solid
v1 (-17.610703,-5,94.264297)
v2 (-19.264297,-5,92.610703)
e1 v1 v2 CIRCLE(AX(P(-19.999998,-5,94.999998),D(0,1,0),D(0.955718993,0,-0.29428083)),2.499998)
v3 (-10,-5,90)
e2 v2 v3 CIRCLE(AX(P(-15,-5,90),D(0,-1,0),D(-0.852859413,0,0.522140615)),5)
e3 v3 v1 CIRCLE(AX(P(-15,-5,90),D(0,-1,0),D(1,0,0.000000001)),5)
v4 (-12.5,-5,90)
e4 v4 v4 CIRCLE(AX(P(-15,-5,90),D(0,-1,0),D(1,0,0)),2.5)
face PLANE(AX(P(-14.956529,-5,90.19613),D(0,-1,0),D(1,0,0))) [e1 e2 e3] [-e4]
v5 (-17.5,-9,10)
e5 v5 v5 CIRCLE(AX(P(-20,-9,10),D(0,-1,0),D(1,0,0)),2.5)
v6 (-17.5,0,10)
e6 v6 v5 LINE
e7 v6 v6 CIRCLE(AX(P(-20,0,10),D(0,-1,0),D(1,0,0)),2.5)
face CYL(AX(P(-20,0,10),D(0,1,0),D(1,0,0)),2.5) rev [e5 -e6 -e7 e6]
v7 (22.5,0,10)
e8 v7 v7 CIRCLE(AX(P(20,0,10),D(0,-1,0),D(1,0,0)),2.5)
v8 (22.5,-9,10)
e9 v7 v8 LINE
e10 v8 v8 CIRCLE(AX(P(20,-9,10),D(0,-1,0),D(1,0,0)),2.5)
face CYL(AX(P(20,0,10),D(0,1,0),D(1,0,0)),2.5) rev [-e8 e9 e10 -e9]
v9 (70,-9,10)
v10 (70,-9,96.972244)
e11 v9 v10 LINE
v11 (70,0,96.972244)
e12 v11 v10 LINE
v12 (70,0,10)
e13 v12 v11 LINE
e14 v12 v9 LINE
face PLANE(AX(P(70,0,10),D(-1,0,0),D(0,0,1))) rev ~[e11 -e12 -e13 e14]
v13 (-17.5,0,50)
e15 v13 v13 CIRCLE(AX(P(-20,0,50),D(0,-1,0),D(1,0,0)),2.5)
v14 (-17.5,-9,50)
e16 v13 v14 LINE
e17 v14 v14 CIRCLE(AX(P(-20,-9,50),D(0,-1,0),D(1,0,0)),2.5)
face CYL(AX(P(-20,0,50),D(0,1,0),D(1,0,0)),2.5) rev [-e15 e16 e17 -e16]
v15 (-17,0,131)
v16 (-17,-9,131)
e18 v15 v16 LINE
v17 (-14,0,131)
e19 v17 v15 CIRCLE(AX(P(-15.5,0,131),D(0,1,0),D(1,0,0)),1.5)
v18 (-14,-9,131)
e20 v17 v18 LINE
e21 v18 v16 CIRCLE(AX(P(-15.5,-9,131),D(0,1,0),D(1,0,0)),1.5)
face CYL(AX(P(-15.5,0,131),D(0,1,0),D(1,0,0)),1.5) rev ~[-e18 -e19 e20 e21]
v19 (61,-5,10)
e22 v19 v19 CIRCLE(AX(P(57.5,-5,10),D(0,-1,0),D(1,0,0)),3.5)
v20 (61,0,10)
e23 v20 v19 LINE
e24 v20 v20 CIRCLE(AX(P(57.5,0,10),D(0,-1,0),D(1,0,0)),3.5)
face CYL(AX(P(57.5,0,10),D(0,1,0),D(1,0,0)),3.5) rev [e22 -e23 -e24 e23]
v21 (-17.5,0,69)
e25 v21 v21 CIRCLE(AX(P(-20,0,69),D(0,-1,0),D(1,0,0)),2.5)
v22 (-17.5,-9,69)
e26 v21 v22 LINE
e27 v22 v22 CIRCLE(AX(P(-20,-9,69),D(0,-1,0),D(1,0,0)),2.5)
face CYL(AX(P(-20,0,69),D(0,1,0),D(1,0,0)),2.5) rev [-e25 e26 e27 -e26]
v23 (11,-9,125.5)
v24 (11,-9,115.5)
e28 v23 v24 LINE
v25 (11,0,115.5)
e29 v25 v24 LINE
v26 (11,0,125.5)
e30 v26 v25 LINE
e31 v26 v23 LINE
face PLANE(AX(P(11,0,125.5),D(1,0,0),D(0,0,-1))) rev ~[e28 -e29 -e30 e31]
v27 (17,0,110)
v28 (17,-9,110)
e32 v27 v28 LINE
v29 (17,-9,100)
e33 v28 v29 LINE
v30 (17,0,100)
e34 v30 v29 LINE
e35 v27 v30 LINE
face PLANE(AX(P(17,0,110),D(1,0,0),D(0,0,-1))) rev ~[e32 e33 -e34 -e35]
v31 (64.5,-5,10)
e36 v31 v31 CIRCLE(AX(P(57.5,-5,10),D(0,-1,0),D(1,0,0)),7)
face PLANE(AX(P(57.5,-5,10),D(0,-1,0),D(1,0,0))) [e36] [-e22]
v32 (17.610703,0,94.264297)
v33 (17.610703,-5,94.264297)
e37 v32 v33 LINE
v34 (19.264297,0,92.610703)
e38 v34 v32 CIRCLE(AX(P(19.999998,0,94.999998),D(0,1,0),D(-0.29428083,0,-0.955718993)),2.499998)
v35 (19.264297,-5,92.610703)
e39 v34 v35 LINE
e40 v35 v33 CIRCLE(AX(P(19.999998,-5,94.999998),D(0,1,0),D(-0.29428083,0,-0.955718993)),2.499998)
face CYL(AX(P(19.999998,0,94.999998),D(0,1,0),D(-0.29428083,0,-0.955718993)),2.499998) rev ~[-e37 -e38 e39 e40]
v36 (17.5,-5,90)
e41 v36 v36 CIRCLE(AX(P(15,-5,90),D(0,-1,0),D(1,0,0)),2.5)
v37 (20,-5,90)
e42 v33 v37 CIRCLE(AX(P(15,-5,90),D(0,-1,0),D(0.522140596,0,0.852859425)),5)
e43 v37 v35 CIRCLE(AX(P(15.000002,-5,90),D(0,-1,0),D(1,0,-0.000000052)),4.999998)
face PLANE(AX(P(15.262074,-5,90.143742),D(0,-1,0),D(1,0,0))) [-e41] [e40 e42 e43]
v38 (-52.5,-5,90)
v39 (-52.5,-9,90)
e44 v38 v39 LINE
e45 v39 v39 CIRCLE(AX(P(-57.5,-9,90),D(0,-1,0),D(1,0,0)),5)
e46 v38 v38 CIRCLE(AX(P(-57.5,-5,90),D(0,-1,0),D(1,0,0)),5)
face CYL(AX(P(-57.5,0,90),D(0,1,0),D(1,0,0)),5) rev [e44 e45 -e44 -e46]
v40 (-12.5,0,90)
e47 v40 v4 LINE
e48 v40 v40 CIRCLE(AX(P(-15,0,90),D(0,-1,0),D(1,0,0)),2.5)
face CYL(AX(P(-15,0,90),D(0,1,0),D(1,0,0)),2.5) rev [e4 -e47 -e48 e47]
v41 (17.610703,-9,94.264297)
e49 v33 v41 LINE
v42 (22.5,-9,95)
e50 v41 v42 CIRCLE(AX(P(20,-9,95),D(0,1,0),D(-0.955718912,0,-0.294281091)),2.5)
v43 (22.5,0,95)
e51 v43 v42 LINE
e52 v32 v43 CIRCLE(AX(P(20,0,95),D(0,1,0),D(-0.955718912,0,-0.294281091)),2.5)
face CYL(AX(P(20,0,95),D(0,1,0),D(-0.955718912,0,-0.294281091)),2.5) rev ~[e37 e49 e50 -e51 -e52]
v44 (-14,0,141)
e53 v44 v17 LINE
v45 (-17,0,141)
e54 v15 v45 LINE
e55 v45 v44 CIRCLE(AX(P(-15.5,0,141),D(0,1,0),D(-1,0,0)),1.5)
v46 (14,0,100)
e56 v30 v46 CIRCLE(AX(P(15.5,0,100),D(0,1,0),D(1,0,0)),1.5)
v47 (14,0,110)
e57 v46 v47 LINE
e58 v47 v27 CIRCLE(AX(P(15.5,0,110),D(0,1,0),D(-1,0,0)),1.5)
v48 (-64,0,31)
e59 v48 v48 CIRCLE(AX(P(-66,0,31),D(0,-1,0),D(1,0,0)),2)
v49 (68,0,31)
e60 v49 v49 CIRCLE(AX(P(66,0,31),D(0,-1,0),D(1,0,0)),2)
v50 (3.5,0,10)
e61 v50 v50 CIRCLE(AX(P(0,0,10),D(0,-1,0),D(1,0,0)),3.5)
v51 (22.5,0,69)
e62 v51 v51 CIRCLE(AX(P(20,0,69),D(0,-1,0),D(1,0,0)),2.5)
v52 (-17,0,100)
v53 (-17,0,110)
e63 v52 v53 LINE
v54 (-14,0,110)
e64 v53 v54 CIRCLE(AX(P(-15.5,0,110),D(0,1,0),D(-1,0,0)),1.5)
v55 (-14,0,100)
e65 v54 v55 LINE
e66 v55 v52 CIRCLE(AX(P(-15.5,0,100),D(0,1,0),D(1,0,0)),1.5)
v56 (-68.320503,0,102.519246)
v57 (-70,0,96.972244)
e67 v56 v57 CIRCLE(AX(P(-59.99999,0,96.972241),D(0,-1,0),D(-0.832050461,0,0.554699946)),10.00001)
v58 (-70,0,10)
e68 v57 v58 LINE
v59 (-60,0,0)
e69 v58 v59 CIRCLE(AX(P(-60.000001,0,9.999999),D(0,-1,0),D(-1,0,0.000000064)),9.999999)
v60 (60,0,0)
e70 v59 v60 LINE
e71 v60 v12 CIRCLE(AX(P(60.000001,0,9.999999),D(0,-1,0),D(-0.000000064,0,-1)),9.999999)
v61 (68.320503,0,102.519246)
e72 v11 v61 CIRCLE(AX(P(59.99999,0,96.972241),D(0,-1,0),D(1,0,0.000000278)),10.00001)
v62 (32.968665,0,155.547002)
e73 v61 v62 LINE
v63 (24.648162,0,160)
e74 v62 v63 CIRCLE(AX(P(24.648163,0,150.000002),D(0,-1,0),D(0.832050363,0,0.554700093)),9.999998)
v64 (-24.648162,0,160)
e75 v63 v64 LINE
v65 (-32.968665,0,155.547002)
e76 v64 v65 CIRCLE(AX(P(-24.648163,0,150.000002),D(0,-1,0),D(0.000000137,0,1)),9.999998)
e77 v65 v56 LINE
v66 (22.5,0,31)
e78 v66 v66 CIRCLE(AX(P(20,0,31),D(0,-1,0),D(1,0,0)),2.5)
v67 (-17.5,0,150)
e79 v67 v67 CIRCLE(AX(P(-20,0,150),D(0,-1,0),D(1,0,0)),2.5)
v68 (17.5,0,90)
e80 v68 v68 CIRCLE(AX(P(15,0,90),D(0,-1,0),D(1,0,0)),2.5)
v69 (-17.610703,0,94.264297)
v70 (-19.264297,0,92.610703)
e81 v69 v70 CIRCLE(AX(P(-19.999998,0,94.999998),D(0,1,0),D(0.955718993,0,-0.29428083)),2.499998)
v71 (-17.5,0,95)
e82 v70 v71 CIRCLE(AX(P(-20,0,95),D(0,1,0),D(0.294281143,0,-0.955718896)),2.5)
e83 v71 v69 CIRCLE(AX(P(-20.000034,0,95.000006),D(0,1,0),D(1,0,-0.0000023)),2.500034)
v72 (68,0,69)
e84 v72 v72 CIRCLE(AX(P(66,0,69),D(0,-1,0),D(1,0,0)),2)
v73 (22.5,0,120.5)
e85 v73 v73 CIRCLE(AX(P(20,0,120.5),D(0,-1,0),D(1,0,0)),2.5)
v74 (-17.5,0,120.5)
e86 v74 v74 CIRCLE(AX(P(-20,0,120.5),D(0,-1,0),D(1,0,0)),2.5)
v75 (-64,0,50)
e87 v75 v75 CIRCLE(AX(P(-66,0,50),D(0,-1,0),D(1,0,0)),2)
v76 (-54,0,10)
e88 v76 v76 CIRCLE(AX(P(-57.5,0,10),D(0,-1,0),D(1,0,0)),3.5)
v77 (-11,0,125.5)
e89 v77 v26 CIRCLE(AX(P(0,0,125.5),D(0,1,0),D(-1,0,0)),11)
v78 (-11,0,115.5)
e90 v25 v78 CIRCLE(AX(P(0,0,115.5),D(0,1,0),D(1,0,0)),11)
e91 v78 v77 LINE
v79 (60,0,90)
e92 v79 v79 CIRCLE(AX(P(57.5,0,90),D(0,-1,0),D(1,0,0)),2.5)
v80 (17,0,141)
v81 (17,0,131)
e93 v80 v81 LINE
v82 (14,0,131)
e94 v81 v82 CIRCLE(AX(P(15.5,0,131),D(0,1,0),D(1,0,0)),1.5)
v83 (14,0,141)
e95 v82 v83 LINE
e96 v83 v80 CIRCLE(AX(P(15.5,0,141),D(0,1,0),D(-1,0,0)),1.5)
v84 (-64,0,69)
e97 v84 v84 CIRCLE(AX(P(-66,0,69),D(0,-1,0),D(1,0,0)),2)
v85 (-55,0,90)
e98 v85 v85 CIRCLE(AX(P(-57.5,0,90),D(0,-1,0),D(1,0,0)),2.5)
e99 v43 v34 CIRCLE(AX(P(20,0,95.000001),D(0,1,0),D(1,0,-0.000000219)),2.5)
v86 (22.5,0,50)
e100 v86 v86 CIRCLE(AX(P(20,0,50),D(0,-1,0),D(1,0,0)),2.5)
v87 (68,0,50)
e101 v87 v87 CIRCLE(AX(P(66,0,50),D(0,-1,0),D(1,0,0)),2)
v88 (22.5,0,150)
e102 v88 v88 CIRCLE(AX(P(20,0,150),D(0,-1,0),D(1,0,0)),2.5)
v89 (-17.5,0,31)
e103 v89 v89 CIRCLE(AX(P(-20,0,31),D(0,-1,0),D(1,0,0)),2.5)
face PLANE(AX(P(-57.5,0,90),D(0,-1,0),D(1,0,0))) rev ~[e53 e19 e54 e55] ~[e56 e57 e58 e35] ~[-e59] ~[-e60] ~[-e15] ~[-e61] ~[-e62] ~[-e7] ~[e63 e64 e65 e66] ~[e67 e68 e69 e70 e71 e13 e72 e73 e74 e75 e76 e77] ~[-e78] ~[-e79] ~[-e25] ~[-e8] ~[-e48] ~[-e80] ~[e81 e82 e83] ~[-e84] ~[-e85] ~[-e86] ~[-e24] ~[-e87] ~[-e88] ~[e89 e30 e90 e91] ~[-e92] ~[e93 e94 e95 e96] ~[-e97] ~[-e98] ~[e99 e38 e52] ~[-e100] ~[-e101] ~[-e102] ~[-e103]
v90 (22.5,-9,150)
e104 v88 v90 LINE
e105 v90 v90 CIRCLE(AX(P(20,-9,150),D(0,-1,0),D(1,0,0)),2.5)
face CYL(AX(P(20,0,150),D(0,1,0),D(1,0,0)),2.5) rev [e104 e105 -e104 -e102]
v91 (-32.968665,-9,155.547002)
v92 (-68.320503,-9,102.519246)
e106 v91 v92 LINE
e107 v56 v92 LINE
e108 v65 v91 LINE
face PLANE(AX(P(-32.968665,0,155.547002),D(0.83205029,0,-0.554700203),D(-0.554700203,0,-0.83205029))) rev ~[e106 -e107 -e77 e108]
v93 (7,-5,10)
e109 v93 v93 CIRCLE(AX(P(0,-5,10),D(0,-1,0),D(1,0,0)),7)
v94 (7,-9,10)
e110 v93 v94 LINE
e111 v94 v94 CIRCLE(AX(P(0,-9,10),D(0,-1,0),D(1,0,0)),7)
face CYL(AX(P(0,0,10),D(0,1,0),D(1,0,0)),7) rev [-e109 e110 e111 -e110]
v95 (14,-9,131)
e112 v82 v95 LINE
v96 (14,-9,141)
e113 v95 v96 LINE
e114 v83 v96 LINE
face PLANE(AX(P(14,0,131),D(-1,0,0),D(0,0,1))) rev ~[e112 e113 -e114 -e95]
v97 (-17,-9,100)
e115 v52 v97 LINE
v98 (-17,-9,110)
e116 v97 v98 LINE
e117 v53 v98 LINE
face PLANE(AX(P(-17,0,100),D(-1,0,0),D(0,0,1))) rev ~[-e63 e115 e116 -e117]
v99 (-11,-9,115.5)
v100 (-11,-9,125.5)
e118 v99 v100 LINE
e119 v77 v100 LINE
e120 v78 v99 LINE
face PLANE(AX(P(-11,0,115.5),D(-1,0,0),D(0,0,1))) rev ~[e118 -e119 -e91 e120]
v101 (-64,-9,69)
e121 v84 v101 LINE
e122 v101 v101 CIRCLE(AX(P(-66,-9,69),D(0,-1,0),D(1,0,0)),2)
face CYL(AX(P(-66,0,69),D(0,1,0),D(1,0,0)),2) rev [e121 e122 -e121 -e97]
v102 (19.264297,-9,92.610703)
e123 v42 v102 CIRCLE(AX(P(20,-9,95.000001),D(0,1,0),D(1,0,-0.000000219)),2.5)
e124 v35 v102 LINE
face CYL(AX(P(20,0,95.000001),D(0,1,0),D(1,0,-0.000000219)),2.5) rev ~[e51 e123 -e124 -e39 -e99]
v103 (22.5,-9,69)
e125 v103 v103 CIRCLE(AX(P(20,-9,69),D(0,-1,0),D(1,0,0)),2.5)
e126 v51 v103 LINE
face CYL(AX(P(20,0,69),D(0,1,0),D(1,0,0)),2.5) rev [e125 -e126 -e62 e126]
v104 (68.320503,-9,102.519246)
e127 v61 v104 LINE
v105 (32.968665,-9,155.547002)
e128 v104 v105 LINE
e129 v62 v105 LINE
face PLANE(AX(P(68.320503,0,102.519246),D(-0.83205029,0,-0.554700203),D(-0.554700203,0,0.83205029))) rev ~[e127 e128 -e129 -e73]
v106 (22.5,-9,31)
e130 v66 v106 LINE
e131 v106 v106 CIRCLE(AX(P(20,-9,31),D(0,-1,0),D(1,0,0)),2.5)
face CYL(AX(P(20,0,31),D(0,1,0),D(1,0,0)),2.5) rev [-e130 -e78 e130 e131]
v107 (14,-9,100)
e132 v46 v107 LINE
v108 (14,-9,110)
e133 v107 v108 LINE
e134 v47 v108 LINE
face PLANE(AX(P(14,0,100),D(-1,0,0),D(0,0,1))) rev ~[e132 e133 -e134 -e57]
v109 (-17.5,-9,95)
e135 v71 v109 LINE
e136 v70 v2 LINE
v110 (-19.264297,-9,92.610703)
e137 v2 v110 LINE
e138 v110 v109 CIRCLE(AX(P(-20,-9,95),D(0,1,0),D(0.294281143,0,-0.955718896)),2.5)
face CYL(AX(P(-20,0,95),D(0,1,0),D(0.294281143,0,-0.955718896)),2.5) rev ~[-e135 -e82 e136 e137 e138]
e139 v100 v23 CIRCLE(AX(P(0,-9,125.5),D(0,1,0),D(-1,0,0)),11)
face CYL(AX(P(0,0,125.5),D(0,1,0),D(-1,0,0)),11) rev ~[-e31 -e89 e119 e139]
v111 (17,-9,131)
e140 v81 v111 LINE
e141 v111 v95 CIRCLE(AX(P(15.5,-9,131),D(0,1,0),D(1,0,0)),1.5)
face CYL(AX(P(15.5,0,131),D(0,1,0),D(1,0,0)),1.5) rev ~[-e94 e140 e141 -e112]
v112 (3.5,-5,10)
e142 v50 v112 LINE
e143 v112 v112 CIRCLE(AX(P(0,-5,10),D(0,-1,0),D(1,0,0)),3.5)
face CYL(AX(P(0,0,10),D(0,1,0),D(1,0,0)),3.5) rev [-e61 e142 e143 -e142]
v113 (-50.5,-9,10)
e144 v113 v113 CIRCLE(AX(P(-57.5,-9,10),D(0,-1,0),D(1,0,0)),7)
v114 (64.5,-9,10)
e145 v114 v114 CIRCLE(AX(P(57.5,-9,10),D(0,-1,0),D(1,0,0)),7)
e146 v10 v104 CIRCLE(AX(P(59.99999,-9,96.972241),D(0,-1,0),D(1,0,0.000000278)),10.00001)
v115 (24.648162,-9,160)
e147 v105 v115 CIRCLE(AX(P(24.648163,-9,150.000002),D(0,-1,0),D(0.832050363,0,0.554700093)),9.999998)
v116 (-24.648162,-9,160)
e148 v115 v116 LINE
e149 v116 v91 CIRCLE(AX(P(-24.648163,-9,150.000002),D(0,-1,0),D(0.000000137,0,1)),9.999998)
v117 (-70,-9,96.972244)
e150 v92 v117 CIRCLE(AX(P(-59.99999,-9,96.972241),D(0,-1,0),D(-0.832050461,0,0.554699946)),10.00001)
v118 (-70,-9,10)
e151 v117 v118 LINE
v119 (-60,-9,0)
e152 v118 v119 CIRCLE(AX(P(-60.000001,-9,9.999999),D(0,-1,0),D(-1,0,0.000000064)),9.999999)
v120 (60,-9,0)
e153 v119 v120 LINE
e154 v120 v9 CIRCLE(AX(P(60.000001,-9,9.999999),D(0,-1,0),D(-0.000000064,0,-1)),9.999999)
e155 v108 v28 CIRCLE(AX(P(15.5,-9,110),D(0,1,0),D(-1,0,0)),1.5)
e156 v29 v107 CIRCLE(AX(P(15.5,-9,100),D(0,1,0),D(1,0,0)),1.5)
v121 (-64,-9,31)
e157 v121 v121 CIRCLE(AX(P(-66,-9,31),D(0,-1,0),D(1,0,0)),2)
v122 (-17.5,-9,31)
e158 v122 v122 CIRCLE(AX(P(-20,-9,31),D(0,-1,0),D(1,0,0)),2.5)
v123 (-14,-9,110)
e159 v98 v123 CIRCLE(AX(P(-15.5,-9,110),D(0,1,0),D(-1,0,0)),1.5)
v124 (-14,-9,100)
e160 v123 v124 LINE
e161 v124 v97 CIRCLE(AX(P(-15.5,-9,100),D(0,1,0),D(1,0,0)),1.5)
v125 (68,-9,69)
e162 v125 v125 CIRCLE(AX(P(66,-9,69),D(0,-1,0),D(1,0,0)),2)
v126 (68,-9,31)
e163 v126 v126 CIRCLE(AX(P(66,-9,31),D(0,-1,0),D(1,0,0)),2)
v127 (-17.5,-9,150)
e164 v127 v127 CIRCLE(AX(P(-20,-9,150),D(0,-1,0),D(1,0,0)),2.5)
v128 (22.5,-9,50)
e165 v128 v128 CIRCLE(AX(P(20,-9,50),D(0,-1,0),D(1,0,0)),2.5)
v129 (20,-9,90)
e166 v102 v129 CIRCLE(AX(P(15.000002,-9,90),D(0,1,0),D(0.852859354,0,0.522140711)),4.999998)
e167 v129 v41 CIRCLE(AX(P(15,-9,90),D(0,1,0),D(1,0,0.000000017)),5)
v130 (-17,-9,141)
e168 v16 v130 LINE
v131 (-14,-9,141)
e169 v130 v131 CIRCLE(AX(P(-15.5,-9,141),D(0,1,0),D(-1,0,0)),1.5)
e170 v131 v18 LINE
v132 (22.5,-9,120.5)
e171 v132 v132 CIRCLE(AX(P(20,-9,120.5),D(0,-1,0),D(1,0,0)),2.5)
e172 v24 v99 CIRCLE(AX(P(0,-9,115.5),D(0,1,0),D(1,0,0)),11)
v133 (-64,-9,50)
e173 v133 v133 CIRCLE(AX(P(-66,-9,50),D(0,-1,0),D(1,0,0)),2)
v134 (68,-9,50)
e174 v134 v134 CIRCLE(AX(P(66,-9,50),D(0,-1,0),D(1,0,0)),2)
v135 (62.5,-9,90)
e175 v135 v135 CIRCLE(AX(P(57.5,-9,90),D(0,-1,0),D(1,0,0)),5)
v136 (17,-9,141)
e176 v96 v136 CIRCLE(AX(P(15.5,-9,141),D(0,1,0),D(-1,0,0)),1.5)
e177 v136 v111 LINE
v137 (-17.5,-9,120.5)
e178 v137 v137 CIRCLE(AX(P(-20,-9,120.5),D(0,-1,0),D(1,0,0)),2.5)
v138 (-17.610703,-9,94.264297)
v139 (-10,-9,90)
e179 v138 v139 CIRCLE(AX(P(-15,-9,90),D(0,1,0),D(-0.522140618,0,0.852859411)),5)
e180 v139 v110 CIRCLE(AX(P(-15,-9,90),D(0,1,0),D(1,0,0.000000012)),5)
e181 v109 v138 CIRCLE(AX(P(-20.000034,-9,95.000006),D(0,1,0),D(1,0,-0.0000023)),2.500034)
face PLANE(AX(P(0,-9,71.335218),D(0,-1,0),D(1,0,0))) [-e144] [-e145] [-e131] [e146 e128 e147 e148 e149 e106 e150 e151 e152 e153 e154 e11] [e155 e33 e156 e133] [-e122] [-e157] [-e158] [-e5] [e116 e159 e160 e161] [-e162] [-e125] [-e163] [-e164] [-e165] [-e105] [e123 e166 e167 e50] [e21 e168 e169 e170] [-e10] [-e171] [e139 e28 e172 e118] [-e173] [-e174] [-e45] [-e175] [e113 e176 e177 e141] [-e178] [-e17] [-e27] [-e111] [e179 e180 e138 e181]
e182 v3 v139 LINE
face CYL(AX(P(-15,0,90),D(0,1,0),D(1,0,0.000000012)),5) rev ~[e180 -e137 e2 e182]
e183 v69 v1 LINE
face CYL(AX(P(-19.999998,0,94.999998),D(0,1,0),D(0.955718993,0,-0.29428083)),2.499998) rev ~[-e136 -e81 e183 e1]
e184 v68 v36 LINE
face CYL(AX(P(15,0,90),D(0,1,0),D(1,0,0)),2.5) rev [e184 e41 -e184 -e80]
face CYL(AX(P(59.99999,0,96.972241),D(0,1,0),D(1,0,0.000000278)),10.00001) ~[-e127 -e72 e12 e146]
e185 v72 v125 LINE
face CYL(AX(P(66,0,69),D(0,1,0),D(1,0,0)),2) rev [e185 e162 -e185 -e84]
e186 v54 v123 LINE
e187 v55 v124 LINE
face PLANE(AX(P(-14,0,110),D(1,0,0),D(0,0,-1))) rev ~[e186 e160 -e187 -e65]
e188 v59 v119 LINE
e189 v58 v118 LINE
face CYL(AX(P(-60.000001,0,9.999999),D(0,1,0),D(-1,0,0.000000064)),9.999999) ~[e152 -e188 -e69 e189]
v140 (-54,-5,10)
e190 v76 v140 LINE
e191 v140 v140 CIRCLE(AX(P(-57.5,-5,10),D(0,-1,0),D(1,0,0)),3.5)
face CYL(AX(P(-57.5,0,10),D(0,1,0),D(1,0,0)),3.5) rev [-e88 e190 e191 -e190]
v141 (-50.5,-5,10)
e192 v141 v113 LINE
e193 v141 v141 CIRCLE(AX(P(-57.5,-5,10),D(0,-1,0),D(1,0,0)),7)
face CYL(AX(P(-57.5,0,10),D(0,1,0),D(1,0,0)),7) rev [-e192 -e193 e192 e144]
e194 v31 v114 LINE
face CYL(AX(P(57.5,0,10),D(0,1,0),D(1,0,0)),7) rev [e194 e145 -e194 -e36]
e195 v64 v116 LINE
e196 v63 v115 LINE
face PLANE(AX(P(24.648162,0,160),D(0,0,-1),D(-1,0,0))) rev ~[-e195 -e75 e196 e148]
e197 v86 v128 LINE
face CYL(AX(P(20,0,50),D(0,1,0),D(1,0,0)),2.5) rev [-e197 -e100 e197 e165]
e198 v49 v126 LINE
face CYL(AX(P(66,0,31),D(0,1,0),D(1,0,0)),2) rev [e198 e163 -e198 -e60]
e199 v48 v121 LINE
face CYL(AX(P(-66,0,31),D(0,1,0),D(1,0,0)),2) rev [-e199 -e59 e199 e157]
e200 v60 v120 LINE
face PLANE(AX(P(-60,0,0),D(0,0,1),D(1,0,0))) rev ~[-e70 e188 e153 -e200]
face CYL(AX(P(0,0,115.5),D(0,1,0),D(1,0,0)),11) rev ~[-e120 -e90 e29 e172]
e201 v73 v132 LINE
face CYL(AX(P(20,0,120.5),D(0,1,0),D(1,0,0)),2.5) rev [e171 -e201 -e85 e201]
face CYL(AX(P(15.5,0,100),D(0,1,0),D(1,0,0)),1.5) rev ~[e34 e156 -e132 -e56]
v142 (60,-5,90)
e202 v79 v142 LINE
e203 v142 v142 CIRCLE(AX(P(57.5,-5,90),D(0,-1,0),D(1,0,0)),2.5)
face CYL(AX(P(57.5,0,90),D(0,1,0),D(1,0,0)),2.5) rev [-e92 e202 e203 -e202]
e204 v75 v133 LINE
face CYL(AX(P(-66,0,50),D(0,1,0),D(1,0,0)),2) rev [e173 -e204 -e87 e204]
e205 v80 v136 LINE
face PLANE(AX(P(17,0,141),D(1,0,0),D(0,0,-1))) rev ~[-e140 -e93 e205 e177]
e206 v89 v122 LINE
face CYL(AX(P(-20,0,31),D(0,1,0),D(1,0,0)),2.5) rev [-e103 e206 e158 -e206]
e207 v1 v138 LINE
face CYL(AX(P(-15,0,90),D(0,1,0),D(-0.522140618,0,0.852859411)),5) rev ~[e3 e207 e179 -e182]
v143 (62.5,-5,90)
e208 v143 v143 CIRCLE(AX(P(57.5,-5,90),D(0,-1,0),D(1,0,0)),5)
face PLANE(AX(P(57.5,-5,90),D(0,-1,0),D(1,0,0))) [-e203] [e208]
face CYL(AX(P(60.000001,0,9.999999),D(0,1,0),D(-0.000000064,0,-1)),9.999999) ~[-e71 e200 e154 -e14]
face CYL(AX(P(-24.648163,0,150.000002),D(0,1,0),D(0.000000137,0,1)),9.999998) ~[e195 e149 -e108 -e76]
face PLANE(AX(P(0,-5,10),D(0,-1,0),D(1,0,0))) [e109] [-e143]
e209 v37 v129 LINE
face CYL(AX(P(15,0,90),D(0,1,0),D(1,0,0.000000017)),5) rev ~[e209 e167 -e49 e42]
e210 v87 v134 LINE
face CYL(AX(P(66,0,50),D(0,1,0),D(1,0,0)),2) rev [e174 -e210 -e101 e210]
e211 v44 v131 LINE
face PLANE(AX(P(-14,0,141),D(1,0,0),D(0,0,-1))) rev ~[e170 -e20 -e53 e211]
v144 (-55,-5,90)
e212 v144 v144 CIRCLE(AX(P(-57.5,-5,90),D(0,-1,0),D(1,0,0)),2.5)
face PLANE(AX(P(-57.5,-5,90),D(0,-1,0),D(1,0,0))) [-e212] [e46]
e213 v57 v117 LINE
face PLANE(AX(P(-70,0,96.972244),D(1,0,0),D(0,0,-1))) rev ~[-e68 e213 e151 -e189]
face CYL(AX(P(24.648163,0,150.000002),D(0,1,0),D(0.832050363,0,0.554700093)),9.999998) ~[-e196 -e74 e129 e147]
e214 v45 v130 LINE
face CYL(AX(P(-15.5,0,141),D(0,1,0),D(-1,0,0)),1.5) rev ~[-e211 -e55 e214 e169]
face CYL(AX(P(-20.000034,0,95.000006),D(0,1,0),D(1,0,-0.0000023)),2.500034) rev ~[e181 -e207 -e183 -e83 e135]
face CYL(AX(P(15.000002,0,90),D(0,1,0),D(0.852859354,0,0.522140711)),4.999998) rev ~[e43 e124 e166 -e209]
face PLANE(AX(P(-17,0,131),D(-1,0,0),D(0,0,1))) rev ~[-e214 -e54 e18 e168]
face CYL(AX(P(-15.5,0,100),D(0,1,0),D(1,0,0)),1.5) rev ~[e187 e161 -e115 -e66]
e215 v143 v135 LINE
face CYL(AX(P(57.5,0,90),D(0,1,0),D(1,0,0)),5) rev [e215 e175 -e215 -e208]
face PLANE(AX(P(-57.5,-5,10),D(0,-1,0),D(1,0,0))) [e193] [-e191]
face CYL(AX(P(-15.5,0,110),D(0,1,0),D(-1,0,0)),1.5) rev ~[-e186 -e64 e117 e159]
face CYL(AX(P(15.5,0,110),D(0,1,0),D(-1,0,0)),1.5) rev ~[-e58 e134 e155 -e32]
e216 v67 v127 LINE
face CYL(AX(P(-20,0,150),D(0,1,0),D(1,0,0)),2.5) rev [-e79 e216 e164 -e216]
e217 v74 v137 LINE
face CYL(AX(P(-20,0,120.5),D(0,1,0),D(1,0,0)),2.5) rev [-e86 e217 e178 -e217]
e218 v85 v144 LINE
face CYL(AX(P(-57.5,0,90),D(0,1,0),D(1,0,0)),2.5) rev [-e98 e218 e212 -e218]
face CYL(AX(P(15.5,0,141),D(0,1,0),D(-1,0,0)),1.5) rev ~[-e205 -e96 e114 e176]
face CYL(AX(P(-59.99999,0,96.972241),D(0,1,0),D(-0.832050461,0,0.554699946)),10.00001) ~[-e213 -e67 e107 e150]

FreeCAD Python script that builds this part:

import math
import FreeCAD as App
import Part
import Sketcher

V = App.Vector
Q = App.Units.Quantity

doc = App.newDocument("Part")
body = doc.addObject("PartDesign::Body", "Body")

# Sketch on XZ plane
sketch1 = doc.addObject("Sketcher::SketchObject", "Sketch")
body.addObject(sketch1)
sketch1.AttachmentSupport = (doc.XZ_Plane, [""])
sketch1.MapMode = "FlatFace"
sketch1.addGeometry(Part.ArcOfCircle(Part.Circle(V(-60, 10, 0), V(0, 0, 1), 10), math.radians(180), math.radians(270)), False)
sketch1.addGeometry(Part.LineSegment(V(-60, 0, 0), V(60, 0, 0)), False)
sketch1.addGeometry(Part.ArcOfCircle(Part.Circle(V(60, 10, 0), V(0, 0, 1), 10), math.radians(-90), math.radians(0)), False)
sketch1.addGeometry(Part.LineSegment(V(70, 10, 0), V(70, 97, 0)), False)
sketch1.addGeometry(Part.ArcOfCircle(Part.Circle(V(60, 97, 0), V(0, 0, 1), 10), math.radians(0), math.radians(34)), False)
sketch1.addGeometry(Part.LineSegment(V(68.3, 102.5, 0), V(33, 155.5, 0)), False)
sketch1.addGeometry(Part.ArcOfCircle(Part.Circle(V(24.6, 150, 0), V(0, 0, 1), 10), math.radians(34), math.radians(90)), False)
sketch1.addGeometry(Part.LineSegment(V(24.6, 160, 0), V(-24.6, 160, 0)), False)
sketch1.addGeometry(Part.ArcOfCircle(Part.Circle(V(-24.6, 150, 0), V(0, 0, 1), 10), math.radians(90), math.radians(146)), False)
sketch1.addGeometry(Part.LineSegment(V(-33, 155.5, 0), V(-68.3, 102.5, 0)), False)
sketch1.addGeometry(Part.ArcOfCircle(Part.Circle(V(-60, 97, 0), V(0, 0, 1), 10), math.radians(146), math.radians(180)), False)
sketch1.addGeometry(Part.LineSegment(V(-70, 97, 0), V(-70, 10, 0)), False)
sketch1.addGeometry(Part.Circle(V(-57.5, 10, 0), V(0, 0, 1), 7), False)
sketch1.addGeometry(Part.Circle(V(-66, 31, 0), V(0, 0, 1), 2), False)
sketch1.addGeometry(Part.Circle(V(-20, 10, 0), V(0, 0, 1), 2.5), False)
sketch1.addGeometry(Part.Circle(V(-20, 31, 0), V(0, 0, 1), 2.5), False)
sketch1.addGeometry(Part.Circle(V(-66, 50, 0), V(0, 0, 1), 2), False)
sketch1.addGeometry(Part.Circle(V(-66, 69, 0), V(0, 0, 1), 2), False)
sketch1.addGeometry(Part.Circle(V(-20, 50, 0), V(0, 0, 1), 2.5), False)
sketch1.addGeometry(Part.Circle(V(-20, 69, 0), V(0, 0, 1), 2.5), False)
sketch1.addGeometry(Part.Circle(V(0, 10, 0), V(0, 0, 1), 7), False)
sketch1.addGeometry(Part.Circle(V(20, 10, 0), V(0, 0, 1), 2.5), False)
sketch1.addGeometry(Part.Circle(V(20, 31, 0), V(0, 0, 1), 2.5), False)
sketch1.addGeometry(Part.Circle(V(57.5, 10, 0), V(0, 0, 1), 7), False)
sketch1.addGeometry(Part.Circle(V(66, 31, 0), V(0, 0, 1), 2), False)
sketch1.addGeometry(Part.Circle(V(20, 50, 0), V(0, 0, 1), 2.5), False)
sketch1.addGeometry(Part.Circle(V(20, 69, 0), V(0, 0, 1), 2.5), False)
sketch1.addGeometry(Part.Circle(V(66, 50, 0), V(0, 0, 1), 2), False)
sketch1.addGeometry(Part.Circle(V(66, 69, 0), V(0, 0, 1), 2), False)
sketch1.addGeometry(Part.Circle(V(-57.5, 90, 0), V(0, 0, 1), 5), False)
sketch1.addGeometry(Part.ArcOfCircle(Part.Circle(V(-15, 90, 0), V(0, 0, 1), 5), math.radians(149), math.radians(360)), False)
sketch1.addGeometry(Part.ArcOfCircle(Part.Circle(V(-20, 95, 0), V(0, 0, 1), 2.5), math.radians(0), math.radians(287)), False)
sketch1.addGeometry(Part.ArcOfCircle(Part.Circle(V(-20, 95, 0), V(0, 0, 1), 2.5), math.radians(-17.11), math.radians(0)), False)
sketch1.addGeometry(Part.ArcOfCircle(Part.Circle(V(-15, 90, 0), V(0, 0, 1), 5), math.radians(0), math.radians(121)), False)
sketch1.addGeometry(Part.LineSegment(V(-17, 100, 0), V(-17, 110, 0)), False)
sketch1.addGeometry(Part.ArcOfCircle(Part.Circle(V(-15.5, 110, 0), V(0, 0, 1), 1.5), math.radians(0), math.radians(180)), False)
sketch1.addGeometry(Part.LineSegment(V(-14, 110, 0), V(-14, 100, 0)), False)
sketch1.addGeometry(Part.ArcOfCircle(Part.Circle(V(-15.5, 100, 0), V(0, 0, 1), 1.5), math.radians(180), math.radians(360)), False)
sketch1.addGeometry(Part.Circle(V(-20, 120.5, 0), V(0, 0, 1), 2.5), False)
sketch1.addGeometry(Part.Circle(V(-20, 150, 0), V(0, 0, 1), 2.5), False)
sketch1.addGeometry(Part.LineSegment(V(-17, 131, 0), V(-17, 141, 0)), False)
sketch1.addGeometry(Part.ArcOfCircle(Part.Circle(V(-15.5, 141, 0), V(0, 0, 1), 1.5), math.radians(0), math.radians(180)), False)
sketch1.addGeometry(Part.LineSegment(V(-14, 141, 0), V(-14, 131, 0)), False)
sketch1.addGeometry(Part.ArcOfCircle(Part.Circle(V(-15.5, 131, 0), V(0, 0, 1), 1.5), math.radians(180), math.radians(360)), False)
sketch1.addGeometry(Part.ArcOfCircle(Part.Circle(V(15, 90, 0), V(0, 0, 1), 5), math.radians(59), math.radians(360)), False)
sketch1.addGeometry(Part.ArcOfCircle(Part.Circle(V(20, 95, 0), V(0, 0, 1), 2.5), math.radians(0), math.radians(197)), False)
sketch1.addGeometry(Part.ArcOfCircle(Part.Circle(V(20, 95, 0), V(0, 0, 1), 2.5), math.radians(-107), math.radians(0)), False)
sketch1.addGeometry(Part.ArcOfCircle(Part.Circle(V(15, 90, 0), V(0, 0, 1), 5), math.radians(0), math.radians(31)), False)
sketch1.addGeometry(Part.LineSegment(V(14, 100, 0), V(14, 110, 0)), False)
sketch1.addGeometry(Part.ArcOfCircle(Part.Circle(V(15.5, 110, 0), V(0, 0, 1), 1.5), math.radians(0), math.radians(180)), False)
sketch1.addGeometry(Part.LineSegment(V(17, 110, 0), V(17, 100, 0)), False)
sketch1.addGeometry(Part.ArcOfCircle(Part.Circle(V(15.5, 100, 0), V(0, 0, 1), 1.5), math.radians(180), math.radians(360)), False)
sketch1.addGeometry(Part.Circle(V(57.5, 90, 0), V(0, 0, 1), 5), False)
sketch1.addGeometry(Part.LineSegment(V(-11, 115.5, 0), V(-11, 125.5, 0)), False)
sketch1.addGeometry(Part.ArcOfCircle(Part.Circle(V(0, 125.5, 0), V(0, 0, 1), 11), math.radians(0), math.radians(180)), False)
sketch1.addGeometry(Part.LineSegment(V(11, 125.5, 0), V(11, 115.5, 0)), False)
sketch1.addGeometry(Part.ArcOfCircle(Part.Circle(V(0, 115.5, 0), V(0, 0, 1), 11), math.radians(180), math.radians(360)), False)
sketch1.addGeometry(Part.Circle(V(20, 120.5, 0), V(0, 0, 1), 2.5), False)
sketch1.addGeometry(Part.LineSegment(V(14, 131, 0), V(14, 141, 0)), False)
sketch1.addGeometry(Part.ArcOfCircle(Part.Circle(V(15.5, 141, 0), V(0, 0, 1), 1.5), math.radians(0), math.radians(180)), False)
sketch1.addGeometry(Part.LineSegment(V(17, 141, 0), V(17, 131, 0)), False)
sketch1.addGeometry(Part.ArcOfCircle(Part.Circle(V(15.5, 131, 0), V(0, 0, 1), 1.5), math.radians(180), math.radians(360)), False)
sketch1.addGeometry(Part.Circle(V(20, 150, 0), V(0, 0, 1), 2.5), False)
sketch1.addConstraint(Sketcher.Constraint("Tangent", 0, 2, 1, 1))
sketch1.addConstraint(Sketcher.Constraint("Tangent", 1, 2, 2, 1))
sketch1.addConstraint(Sketcher.Constraint("Tangent", 2, 2, 3, 1))
sketch1.addConstraint(Sketcher.Constraint("Tangent", 3, 2, 4, 1))
sketch1.addConstraint(Sketcher.Constraint("Tangent", 4, 2, 5, 1))
sketch1.addConstraint(Sketcher.Constraint("Tangent", 5, 2, 6, 1))
sketch1.addConstraint(Sketcher.Constraint("Tangent", 6, 2, 7, 1))
sketch1.addConstraint(Sketcher.Constraint("Tangent", 7, 2, 8, 1))
sketch1.addConstraint(Sketcher.Constraint("Tangent", 8, 2, 9, 1))
sketch1.addConstraint(Sketcher.Constraint("Tangent", 9, 2, 10, 1))
sketch1.addConstraint(Sketcher.Constraint("Tangent", 10, 2, 11, 1))
sketch1.addConstraint(Sketcher.Constraint("Tangent", 11, 2, 0, 1))
sketch1.addConstraint(Sketcher.Constraint("Coincident", 30, 1, 31, 2))
sketch1.addConstraint(Sketcher.Constraint("Coincident", 31, 1, 32, 2))
sketch1.addConstraint(Sketcher.Constraint("Coincident", 32, 1, 33, 2))
sketch1.addConstraint(Sketcher.Constraint("Tangent", 33, 1, 30, 2))
sketch1.addConstraint(Sketcher.Constraint("Tangent", 34, 2, 35, 2))
sketch1.addConstraint(Sketcher.Constraint("Tangent", 35, 1, 36, 1))
sketch1.addConstraint(Sketcher.Constraint("Tangent", 36, 2, 37, 2))
sketch1.addConstraint(Sketcher.Constraint("Tangent", 37, 1, 34, 1))
sketch1.addConstraint(Sketcher.Constraint("Tangent", 40, 2, 41, 2))
sketch1.addConstraint(Sketcher.Constraint("Tangent", 41, 1, 42, 1))
sketch1.addConstraint(Sketcher.Constraint("Tangent", 42, 2, 43, 2))
sketch1.addConstraint(Sketcher.Constraint("Tangent", 43, 1, 40, 1))
sketch1.addConstraint(Sketcher.Constraint("Coincident", 44, 1, 45, 2))
sketch1.addConstraint(Sketcher.Constraint("Tangent", 45, 1, 46, 2))
sketch1.addConstraint(Sketcher.Constraint("Coincident", 46, 1, 47, 2))
sketch1.addConstraint(Sketcher.Constraint("Tangent", 47, 1, 44, 2))
sketch1.addConstraint(Sketcher.Constraint("Tangent", 48, 2, 49, 2))
sketch1.addConstraint(Sketcher.Constraint("Tangent", 49, 1, 50, 1))
sketch1.addConstraint(Sketcher.Constraint("Tangent", 50, 2, 51, 2))
sketch1.addConstraint(Sketcher.Constraint("Tangent", 51, 1, 48, 1))
sketch1.addConstraint(Sketcher.Constraint("Tangent", 53, 2, 54, 2))
sketch1.addConstraint(Sketcher.Constraint("Tangent", 54, 1, 55, 1))
sketch1.addConstraint(Sketcher.Constraint("Tangent", 55, 2, 56, 2))
sketch1.addConstraint(Sketcher.Constraint("Tangent", 56, 1, 53, 1))
sketch1.addConstraint(Sketcher.Constraint("Tangent", 58, 2, 59, 2))
sketch1.addConstraint(Sketcher.Constraint("Tangent", 59, 1, 60, 1))
sketch1.addConstraint(Sketcher.Constraint("Tangent", 60, 2, 61, 2))
sketch1.addConstraint(Sketcher.Constraint("Tangent", 61, 1, 58, 1))
sketch1.addConstraint(Sketcher.Constraint("Horizontal", 1))
sketch1.addConstraint(Sketcher.Constraint("Vertical", 3))
sketch1.addConstraint(Sketcher.Constraint("Horizontal", 7))
sketch1.addConstraint(Sketcher.Constraint("Vertical", 11))
sketch1.addConstraint(Sketcher.Constraint("Vertical", 34))
sketch1.addConstraint(Sketcher.Constraint("Vertical", 36))
sketch1.addConstraint(Sketcher.Constraint("Vertical", 40))
sketch1.addConstraint(Sketcher.Constraint("Vertical", 42))
sketch1.addConstraint(Sketcher.Constraint("Vertical", 48))
sketch1.addConstraint(Sketcher.Constraint("Vertical", 50))
sketch1.addConstraint(Sketcher.Constraint("Vertical", 53))
sketch1.addConstraint(Sketcher.Constraint("Vertical", 55))
sketch1.addConstraint(Sketcher.Constraint("Vertical", 58))
sketch1.addConstraint(Sketcher.Constraint("Vertical", 60))
sketch1.addConstraint(Sketcher.Constraint("Equal", 0, 2))
sketch1.addConstraint(Sketcher.Constraint("Equal", 2, 6))
sketch1.addConstraint(Sketcher.Constraint("Equal", 6, 8))
sketch1.addConstraint(Sketcher.Constraint("Equal", 4, 10))
sketch1.addConstraint(Sketcher.Constraint("Equal", 14, 15))
sketch1.addConstraint(Sketcher.Constraint("Equal", 13, 16))
sketch1.addConstraint(Sketcher.Constraint("Equal", 16, 17))
sketch1.addConstraint(Sketcher.Constraint("Equal", 15, 18))
sketch1.addConstraint(Sketcher.Constraint("Equal", 18, 19))
sketch1.addConstraint(Sketcher.Constraint("Equal", 12, 20))
sketch1.addConstraint(Sketcher.Constraint("Equal", 19, 21))
sketch1.addConstraint(Sketcher.Constraint("Equal", 21, 22))
sketch1.addConstraint(Sketcher.Constraint("Equal", 20, 23))
sketch1.addConstraint(Sketcher.Constraint("Equal", 17, 24))
sketch1.addConstraint(Sketcher.Constraint("Equal", 22, 25))
sketch1.addConstraint(Sketcher.Constraint("Equal", 25, 26))
sketch1.addConstraint(Sketcher.Constraint("Equal", 24, 27))
sketch1.addConstraint(Sketcher.Constraint("Equal", 27, 28))
sketch1.addConstraint(Sketcher.Constraint("Equal", 29, 30))
sketch1.addConstraint(Sketcher.Constraint("Equal", 26, 31))
sketch1.addConstraint(Sketcher.Constraint("Equal", 30, 33))
sketch1.addConstraint(Sketcher.Constraint("Equal", 31, 38))
sketch1.addConstraint(Sketcher.Constraint("Equal", 38, 39))
sketch1.addConstraint(Sketcher.Constraint("Equal", 37, 41))
sketch1.addConstraint(Sketcher.Constraint("Equal", 33, 44))
sketch1.addConstraint(Sketcher.Constraint("Equal", 39, 45))
sketch1.addConstraint(Sketcher.Constraint("Equal", 45, 46))
sketch1.addConstraint(Sketcher.Constraint("Equal", 44, 47))
sketch1.addConstraint(Sketcher.Constraint("Equal", 43, 49))
sketch1.addConstraint(Sketcher.Constraint("Equal", 47, 52))
sketch1.addConstraint(Sketcher.Constraint("Equal", 46, 57))
sketch1.addConstraint(Sketcher.Constraint("Equal", 51, 59))
sketch1.addConstraint(Sketcher.Constraint("Equal", 57, 62))
sketch1.addConstraint(Sketcher.Constraint("Symmetric", 0, 2, 1, 2, -1, 1))
sketch1.addConstraint(Sketcher.Constraint("Symmetric", 14, 3, 21, 3, -2))
sketch1.addConstraint(Sketcher.Constraint("Symmetric", 15, 3, 22, 3, -2))
sketch1.addConstraint(Sketcher.Constraint("Symmetric", 12, 3, 23, 3, -2))
sketch1.addConstraint(Sketcher.Constraint("Symmetric", 13, 3, 24, 3, -2))
sketch1.addConstraint(Sketcher.Constraint("Symmetric", 18, 3, 25, 3, -2))
sketch1.addConstraint(Sketcher.Constraint("Symmetric", 19, 3, 26, 3, -2))
sketch1.addConstraint(Sketcher.Constraint("Symmetric", 16, 3, 27, 3, -2))
sketch1.addConstraint(Sketcher.Constraint("Symmetric", 17, 3, 28, 3, -2))
sketch1.addConstraint(Sketcher.Constraint("Symmetric", 30, 3, 44, 3, -2))
sketch1.addConstraint(Sketcher.Constraint("Symmetric", 31, 3, 45, 3, -2))
sketch1.addConstraint(Sketcher.Constraint("Symmetric", 35, 3, 49, 3, -2))
sketch1.addConstraint(Sketcher.Constraint("Symmetric", 29, 3, 52, 3, -2))
sketch1.addConstraint(Sketcher.Constraint("Symmetric", 38, 3, 57, 3, -2))
sketch1.addConstraint(Sketcher.Constraint("Symmetric", 41, 3, 59, 3, -2))
sketch1.addConstraint(Sketcher.Constraint("Symmetric", 39, 3, 62, 3, -2))
sketch1.addConstraint(Sketcher.Constraint("Symmetric", 5, 2, 8, 2, -2))
sketch1.addConstraint(Sketcher.Constraint("PointOnObject", 20, 3, -2))
sketch1.addConstraint(Sketcher.Constraint("PointOnObject", 54, 3, -2))
sketch1.addConstraint(Sketcher.Constraint("Horizontal", 2, 3, 12, 3))
sketch1.addConstraint(Sketcher.Constraint("Horizontal", 12, 3, 14, 3))
sketch1.addConstraint(Sketcher.Constraint("Horizontal", 13, 3, 15, 3))
sketch1.addConstraint(Sketcher.Constraint("Horizontal", 16, 3, 18, 3))
sketch1.addConstraint(Sketcher.Constraint("Horizontal", 17, 3, 19, 3))
sketch1.addConstraint(Sketcher.Constraint("Horizontal", 14, 3, 20, 3))
sketch1.addConstraint(Sketcher.Constraint("Horizontal", 29, 3, 30, 3))
sketch1.addConstraint(Sketcher.Constraint("Horizontal", 37, 3, 51, 3))
sketch1.addConstraint(Sketcher.Constraint("Horizontal", 43, 3, 61, 3))
sketch1.addConstraint(Sketcher.Constraint("Horizontal", 46, 3, 31, 1))
sketch1.addConstraint(Sketcher.Constraint("Horizontal", 52, 3, 33, 1))
sketch1.addConstraint(Sketcher.Constraint("Horizontal", 32, 1, 44, 1))
sketch1.addConstraint(Sketcher.Constraint("Horizontal", 31, 1, 45, 1))
sketch1.addConstraint(Sketcher.Constraint("Horizontal", 33, 1, 47, 1))
sketch1.addConstraint(Sketcher.Constraint("Vertical", 14, 3, 15, 3))
sketch1.addConstraint(Sketcher.Constraint("Vertical", 13, 3, 16, 3))
sketch1.addConstraint(Sketcher.Constraint("Vertical", 16, 3, 17, 3))
sketch1.addConstraint(Sketcher.Constraint("Vertical", 15, 3, 18, 3))
sketch1.addConstraint(Sketcher.Constraint("Vertical", 18, 3, 19, 3))
sketch1.addConstraint(Sketcher.Constraint("Vertical", 12, 3, 29, 3))
sketch1.addConstraint(Sketcher.Constraint("Vertical", 19, 3, 31, 3))
sketch1.addConstraint(Sketcher.Constraint("Vertical", 31, 3, 38, 3))
sketch1.addConstraint(Sketcher.Constraint("Vertical", 38, 3, 39, 3))
sketch1.addConstraint(Sketcher.Constraint("Vertical", 37, 3, 41, 3))
sketch1.addConstraint(Sketcher.Constraint("Vertical", 62, 3, 47, 1))
sketch1.addConstraint(Sketcher.Constraint("Equal", 36, 40))
sketch1.addConstraint(Sketcher.Constraint("Equal", 50, 53))
sketch1.addConstraint(Sketcher.Constraint("Diameter", 12, Q("14 mm")))
sketch1.addConstraint(Sketcher.Constraint("Diameter", 13, Q("4 mm")))
sketch1.addConstraint(Sketcher.Constraint("Diameter", 14, Q("5 mm")))
sketch1.addConstraint(Sketcher.Constraint("Diameter", 29, Q("10 mm")))
sketch1.addConstraint(Sketcher.Constraint("Radius", 0, Q("9.999999 mm")))
sketch1.addConstraint(Sketcher.Constraint("Radius", 54, Q("11 mm")))
sketch1.addConstraint(Sketcher.Constraint("Radius", 35, Q("1.5 mm")))
sketch1.addConstraint(Sketcher.Constraint("DistanceX", 1, 1, 1, 2, Q("120 mm")))
sketch1.addConstraint(Sketcher.Constraint("DistanceY", 34, 1, 34, 2, Q("10 mm")))
sketch1.addConstraint(Sketcher.Constraint("DistanceX", 13, 3, -1, 1, Q("66 mm")))
sketch1.addConstraint(Sketcher.Constraint("DistanceY", -1, 1, 13, 3, Q("31 mm")))
sketch1.addConstraint(Sketcher.Constraint("DistanceX", 14, 3, -1, 1, Q("20 mm")))
sketch1.addConstraint(Sketcher.Constraint("DistanceY", -1, 1, 16, 3, Q("50 mm")))
sketch1.addConstraint(Sketcher.Constraint("DistanceY", -1, 1, 17, 3, Q("69 mm")))
sketch1.addConstraint(Sketcher.Constraint("DistanceY", -1, 1, 29, 3, Q("90 mm")))
sketch1.addConstraint(Sketcher.Constraint("DistanceY", -1, 1, 31, 3, Q("95 mm")))
sketch1.addConstraint(Sketcher.Constraint("DistanceY", -1, 1, 35, 3, Q("110 mm")))
sketch1.addConstraint(Sketcher.Constraint("DistanceY", -1, 1, 39, 3, Q("150 mm")))
sketch1.addConstraint(Sketcher.Constraint("DistanceY", -1, 1, 41, 3, Q("141 mm")))
sketch1.addConstraint(Sketcher.Constraint("DistanceY", -1, 1, 6, 2, Q("160 mm")))
sketch1.addConstraint(Sketcher.Constraint("DistanceX", 34, 2, -1, 1, Q("17 mm")))
sketch1.addConstraint(Sketcher.Constraint("DistanceX", 12, 3, -1, 1, Q("57.5 mm")))
sketch1.addConstraint(Sketcher.Constraint("DistanceY", -1, 1, 38, 3, Q("120.5 mm")))
sketch1.addConstraint(Sketcher.Constraint("DistanceY", -1, 1, 54, 3, Q("125.5 mm")))
sketch1.addConstraint(Sketcher.Constraint("Radius", 4, Q("10.00001 mm")))
sketch1.addConstraint(Sketcher.Constraint("DistanceY", -1, 1, 5, 2, Q("155.547002 mm")))
sketch1.addConstraint(Sketcher.Constraint("Radius", 32, Q("2.500034 mm")))
sketch1.addConstraint(Sketcher.Constraint("Distance", 5, Q("63.731431 mm")))
pad1 = doc.addObject("PartDesign::Pad", "Pad")
body.addObject(pad1)
pad1.Profile = sketch1
pad1.Length = 9

# Sketch on XZ plane
sketch2 = doc.addObject("Sketcher::SketchObject", "Sketch001")
body.addObject(sketch2)
sketch2.AttachmentSupport = (doc.XZ_Plane, [""])
sketch2.MapMode = "FlatFace"
sketch2.addGeometry(Part.Circle(V(-57.5, 90, 0), V(0, 0, 1), 5), False)
sketch2.addGeometry(Part.Circle(V(-57.5, 90, 0), V(0, 0, 1), 2.5), False)
sketch2.addGeometry(Part.ArcOfCircle(Part.Circle(V(-20, 95, 0), V(0, 0, 1), 2.5), math.radians(-73), math.radians(-17)), False)
sketch2.addGeometry(Part.ArcOfCircle(Part.Circle(V(-15, 90, 0), V(0, 0, 1), 5), math.radians(149), math.radians(360)), False)
sketch2.addGeometry(Part.ArcOfCircle(Part.Circle(V(-15, 90, 0), V(0, 0, 1), 5), math.radians(0), math.radians(121)), False)
sketch2.addGeometry(Part.Circle(V(-15, 90, 0), V(0, 0, 1), 2.5), False)
sketch2.addGeometry(Part.ArcOfCircle(Part.Circle(V(20, 95, 0), V(0, 0, 1), 2.5), math.radians(-163), math.radians(-107)), False)
sketch2.addGeometry(Part.ArcOfCircle(Part.Circle(V(15, 90, 0), V(0, 0, 1), 5), math.radians(59), math.radians(360)), False)
sketch2.addGeometry(Part.ArcOfCircle(Part.Circle(V(15, 90, 0), V(0, 0, 1), 5), math.radians(0), math.radians(31)), False)
sketch2.addGeometry(Part.Circle(V(15, 90, 0), V(0, 0, 1), 2.5), False)
sketch2.addGeometry(Part.Circle(V(57.5, 90, 0), V(0, 0, 1), 5), False)
sketch2.addGeometry(Part.Circle(V(57.5, 90, 0), V(0, 0, 1), 2.5), False)
sketch2.addGeometry(Part.Circle(V(57.5, 10, 0), V(0, 0, 1), 7), False)
sketch2.addGeometry(Part.Circle(V(57.5, 10, 0), V(0, 0, 1), 3.5), False)
sketch2.addGeometry(Part.Circle(V(0, 10, 0), V(0, 0, 1), 7), False)
sketch2.addGeometry(Part.Circle(V(0, 10, 0), V(0, 0, 1), 3.5), False)
sketch2.addGeometry(Part.Circle(V(-57.5, 10, 0), V(0, 0, 1), 7), False)
sketch2.addGeometry(Part.Circle(V(-57.5, 10, 0), V(0, 0, 1), 3.5), False)
sketch2.addConstraint(Sketcher.Constraint("Coincident", 2, 1, 3, 1))
sketch2.addConstraint(Sketcher.Constraint("Tangent", 3, 2, 4, 1))
sketch2.addConstraint(Sketcher.Constraint("Coincident", 4, 2, 2, 2))
sketch2.addConstraint(Sketcher.Constraint("Coincident", 6, 1, 7, 1))
sketch2.addConstraint(Sketcher.Constraint("Tangent", 7, 2, 8, 1))
sketch2.addConstraint(Sketcher.Constraint("Coincident", 8, 2, 6, 2))
sketch2.addConstraint(Sketcher.Constraint("Coincident", 1, 3, 0, 3))
sketch2.addConstraint(Sketcher.Constraint("Coincident", 5, 3, 3, 3))
sketch2.addConstraint(Sketcher.Constraint("Coincident", 9, 3, 7, 3))
sketch2.addConstraint(Sketcher.Constraint("Coincident", 11, 3, 10, 3))
sketch2.addConstraint(Sketcher.Constraint("Coincident", 13, 3, 12, 3))
sketch2.addConstraint(Sketcher.Constraint("Coincident", 15, 3, 14, 3))
sketch2.addConstraint(Sketcher.Constraint("Coincident", 17, 3, 16, 3))
sketch2.addConstraint(Sketcher.Constraint("Equal", 0, 3))
sketch2.addConstraint(Sketcher.Constraint("Equal", 3, 4))
sketch2.addConstraint(Sketcher.Constraint("Equal", 1, 5))
sketch2.addConstraint(Sketcher.Constraint("Equal", 2, 6))
sketch2.addConstraint(Sketcher.Constraint("Equal", 4, 7))
sketch2.addConstraint(Sketcher.Constraint("Equal", 7, 8))
sketch2.addConstraint(Sketcher.Constraint("Equal", 5, 9))
sketch2.addConstraint(Sketcher.Constraint("Equal", 8, 10))
sketch2.addConstraint(Sketcher.Constraint("Equal", 9, 11))
sketch2.addConstraint(Sketcher.Constraint("Equal", 12, 14))
sketch2.addConstraint(Sketcher.Constraint("Equal", 13, 15))
sketch2.addConstraint(Sketcher.Constraint("Equal", 14, 16))
sketch2.addConstraint(Sketcher.Constraint("Equal", 15, 17))
sketch2.addConstraint(Sketcher.Constraint("Symmetric", 2, 3, 6, 3, -2))
sketch2.addConstraint(Sketcher.Constraint("Symmetric", 3, 3, 7, 3, -2))
sketch2.addConstraint(Sketcher.Constraint("Symmetric", 0, 3, 10, 3, -2))
sketch2.addConstraint(Sketcher.Constraint("Symmetric", 12, 3, 16, 3, -2))
sketch2.addConstraint(Sketcher.Constraint("PointOnObject", 14, 3, -2))
sketch2.addConstraint(Sketcher.Constraint("Horizontal", 1, 3, 3, 3))
sketch2.addConstraint(Sketcher.Constraint("Horizontal", 13, 3, 14, 3))
sketch2.addConstraint(Sketcher.Constraint("Horizontal", 11, 3, 3, 2))
sketch2.addConstraint(Sketcher.Constraint("Horizontal", 3, 2, 7, 2))
sketch2.addConstraint(Sketcher.Constraint("Vertical", 11, 3, 12, 3))
sketch2.addConstraint(Sketcher.Constraint("Vertical", 6, 3, 7, 2))
sketch2.addConstraint(Sketcher.Constraint("Diameter", 0, Q("10 mm")))
sketch2.addConstraint(Sketcher.Constraint("Diameter", 1, Q("5 mm")))
sketch2.addConstraint(Sketcher.Constraint("Diameter", 12, Q("14 mm")))
sketch2.addConstraint(Sketcher.Constraint("Diameter", 13, Q("7 mm")))
sketch2.addConstraint(Sketcher.Constraint("DistanceY", -1, 1, 0, 3, Q("90 mm")))
sketch2.addConstraint(Sketcher.Constraint("DistanceX", 2, 3, -1, 1, Q("19.999998 mm")))
sketch2.addConstraint(Sketcher.Constraint("DistanceY", -1, 1, 2, 3, Q("94.999998 mm")))
sketch2.addConstraint(Sketcher.Constraint("DistanceY", -1, 1, 12, 3, Q("10 mm")))
sketch2.addConstraint(Sketcher.Constraint("DistanceX", 0, 3, -1, 1, Q("57.5 mm")))
sketch2.addConstraint(Sketcher.Constraint("Radius", 2, Q("2.499998 mm")))
pad2 = doc.addObject("PartDesign::Pad", "Pad001")
body.addObject(pad2)
pad2.Profile = sketch2
pad2.Length = 5

doc.recompute()
